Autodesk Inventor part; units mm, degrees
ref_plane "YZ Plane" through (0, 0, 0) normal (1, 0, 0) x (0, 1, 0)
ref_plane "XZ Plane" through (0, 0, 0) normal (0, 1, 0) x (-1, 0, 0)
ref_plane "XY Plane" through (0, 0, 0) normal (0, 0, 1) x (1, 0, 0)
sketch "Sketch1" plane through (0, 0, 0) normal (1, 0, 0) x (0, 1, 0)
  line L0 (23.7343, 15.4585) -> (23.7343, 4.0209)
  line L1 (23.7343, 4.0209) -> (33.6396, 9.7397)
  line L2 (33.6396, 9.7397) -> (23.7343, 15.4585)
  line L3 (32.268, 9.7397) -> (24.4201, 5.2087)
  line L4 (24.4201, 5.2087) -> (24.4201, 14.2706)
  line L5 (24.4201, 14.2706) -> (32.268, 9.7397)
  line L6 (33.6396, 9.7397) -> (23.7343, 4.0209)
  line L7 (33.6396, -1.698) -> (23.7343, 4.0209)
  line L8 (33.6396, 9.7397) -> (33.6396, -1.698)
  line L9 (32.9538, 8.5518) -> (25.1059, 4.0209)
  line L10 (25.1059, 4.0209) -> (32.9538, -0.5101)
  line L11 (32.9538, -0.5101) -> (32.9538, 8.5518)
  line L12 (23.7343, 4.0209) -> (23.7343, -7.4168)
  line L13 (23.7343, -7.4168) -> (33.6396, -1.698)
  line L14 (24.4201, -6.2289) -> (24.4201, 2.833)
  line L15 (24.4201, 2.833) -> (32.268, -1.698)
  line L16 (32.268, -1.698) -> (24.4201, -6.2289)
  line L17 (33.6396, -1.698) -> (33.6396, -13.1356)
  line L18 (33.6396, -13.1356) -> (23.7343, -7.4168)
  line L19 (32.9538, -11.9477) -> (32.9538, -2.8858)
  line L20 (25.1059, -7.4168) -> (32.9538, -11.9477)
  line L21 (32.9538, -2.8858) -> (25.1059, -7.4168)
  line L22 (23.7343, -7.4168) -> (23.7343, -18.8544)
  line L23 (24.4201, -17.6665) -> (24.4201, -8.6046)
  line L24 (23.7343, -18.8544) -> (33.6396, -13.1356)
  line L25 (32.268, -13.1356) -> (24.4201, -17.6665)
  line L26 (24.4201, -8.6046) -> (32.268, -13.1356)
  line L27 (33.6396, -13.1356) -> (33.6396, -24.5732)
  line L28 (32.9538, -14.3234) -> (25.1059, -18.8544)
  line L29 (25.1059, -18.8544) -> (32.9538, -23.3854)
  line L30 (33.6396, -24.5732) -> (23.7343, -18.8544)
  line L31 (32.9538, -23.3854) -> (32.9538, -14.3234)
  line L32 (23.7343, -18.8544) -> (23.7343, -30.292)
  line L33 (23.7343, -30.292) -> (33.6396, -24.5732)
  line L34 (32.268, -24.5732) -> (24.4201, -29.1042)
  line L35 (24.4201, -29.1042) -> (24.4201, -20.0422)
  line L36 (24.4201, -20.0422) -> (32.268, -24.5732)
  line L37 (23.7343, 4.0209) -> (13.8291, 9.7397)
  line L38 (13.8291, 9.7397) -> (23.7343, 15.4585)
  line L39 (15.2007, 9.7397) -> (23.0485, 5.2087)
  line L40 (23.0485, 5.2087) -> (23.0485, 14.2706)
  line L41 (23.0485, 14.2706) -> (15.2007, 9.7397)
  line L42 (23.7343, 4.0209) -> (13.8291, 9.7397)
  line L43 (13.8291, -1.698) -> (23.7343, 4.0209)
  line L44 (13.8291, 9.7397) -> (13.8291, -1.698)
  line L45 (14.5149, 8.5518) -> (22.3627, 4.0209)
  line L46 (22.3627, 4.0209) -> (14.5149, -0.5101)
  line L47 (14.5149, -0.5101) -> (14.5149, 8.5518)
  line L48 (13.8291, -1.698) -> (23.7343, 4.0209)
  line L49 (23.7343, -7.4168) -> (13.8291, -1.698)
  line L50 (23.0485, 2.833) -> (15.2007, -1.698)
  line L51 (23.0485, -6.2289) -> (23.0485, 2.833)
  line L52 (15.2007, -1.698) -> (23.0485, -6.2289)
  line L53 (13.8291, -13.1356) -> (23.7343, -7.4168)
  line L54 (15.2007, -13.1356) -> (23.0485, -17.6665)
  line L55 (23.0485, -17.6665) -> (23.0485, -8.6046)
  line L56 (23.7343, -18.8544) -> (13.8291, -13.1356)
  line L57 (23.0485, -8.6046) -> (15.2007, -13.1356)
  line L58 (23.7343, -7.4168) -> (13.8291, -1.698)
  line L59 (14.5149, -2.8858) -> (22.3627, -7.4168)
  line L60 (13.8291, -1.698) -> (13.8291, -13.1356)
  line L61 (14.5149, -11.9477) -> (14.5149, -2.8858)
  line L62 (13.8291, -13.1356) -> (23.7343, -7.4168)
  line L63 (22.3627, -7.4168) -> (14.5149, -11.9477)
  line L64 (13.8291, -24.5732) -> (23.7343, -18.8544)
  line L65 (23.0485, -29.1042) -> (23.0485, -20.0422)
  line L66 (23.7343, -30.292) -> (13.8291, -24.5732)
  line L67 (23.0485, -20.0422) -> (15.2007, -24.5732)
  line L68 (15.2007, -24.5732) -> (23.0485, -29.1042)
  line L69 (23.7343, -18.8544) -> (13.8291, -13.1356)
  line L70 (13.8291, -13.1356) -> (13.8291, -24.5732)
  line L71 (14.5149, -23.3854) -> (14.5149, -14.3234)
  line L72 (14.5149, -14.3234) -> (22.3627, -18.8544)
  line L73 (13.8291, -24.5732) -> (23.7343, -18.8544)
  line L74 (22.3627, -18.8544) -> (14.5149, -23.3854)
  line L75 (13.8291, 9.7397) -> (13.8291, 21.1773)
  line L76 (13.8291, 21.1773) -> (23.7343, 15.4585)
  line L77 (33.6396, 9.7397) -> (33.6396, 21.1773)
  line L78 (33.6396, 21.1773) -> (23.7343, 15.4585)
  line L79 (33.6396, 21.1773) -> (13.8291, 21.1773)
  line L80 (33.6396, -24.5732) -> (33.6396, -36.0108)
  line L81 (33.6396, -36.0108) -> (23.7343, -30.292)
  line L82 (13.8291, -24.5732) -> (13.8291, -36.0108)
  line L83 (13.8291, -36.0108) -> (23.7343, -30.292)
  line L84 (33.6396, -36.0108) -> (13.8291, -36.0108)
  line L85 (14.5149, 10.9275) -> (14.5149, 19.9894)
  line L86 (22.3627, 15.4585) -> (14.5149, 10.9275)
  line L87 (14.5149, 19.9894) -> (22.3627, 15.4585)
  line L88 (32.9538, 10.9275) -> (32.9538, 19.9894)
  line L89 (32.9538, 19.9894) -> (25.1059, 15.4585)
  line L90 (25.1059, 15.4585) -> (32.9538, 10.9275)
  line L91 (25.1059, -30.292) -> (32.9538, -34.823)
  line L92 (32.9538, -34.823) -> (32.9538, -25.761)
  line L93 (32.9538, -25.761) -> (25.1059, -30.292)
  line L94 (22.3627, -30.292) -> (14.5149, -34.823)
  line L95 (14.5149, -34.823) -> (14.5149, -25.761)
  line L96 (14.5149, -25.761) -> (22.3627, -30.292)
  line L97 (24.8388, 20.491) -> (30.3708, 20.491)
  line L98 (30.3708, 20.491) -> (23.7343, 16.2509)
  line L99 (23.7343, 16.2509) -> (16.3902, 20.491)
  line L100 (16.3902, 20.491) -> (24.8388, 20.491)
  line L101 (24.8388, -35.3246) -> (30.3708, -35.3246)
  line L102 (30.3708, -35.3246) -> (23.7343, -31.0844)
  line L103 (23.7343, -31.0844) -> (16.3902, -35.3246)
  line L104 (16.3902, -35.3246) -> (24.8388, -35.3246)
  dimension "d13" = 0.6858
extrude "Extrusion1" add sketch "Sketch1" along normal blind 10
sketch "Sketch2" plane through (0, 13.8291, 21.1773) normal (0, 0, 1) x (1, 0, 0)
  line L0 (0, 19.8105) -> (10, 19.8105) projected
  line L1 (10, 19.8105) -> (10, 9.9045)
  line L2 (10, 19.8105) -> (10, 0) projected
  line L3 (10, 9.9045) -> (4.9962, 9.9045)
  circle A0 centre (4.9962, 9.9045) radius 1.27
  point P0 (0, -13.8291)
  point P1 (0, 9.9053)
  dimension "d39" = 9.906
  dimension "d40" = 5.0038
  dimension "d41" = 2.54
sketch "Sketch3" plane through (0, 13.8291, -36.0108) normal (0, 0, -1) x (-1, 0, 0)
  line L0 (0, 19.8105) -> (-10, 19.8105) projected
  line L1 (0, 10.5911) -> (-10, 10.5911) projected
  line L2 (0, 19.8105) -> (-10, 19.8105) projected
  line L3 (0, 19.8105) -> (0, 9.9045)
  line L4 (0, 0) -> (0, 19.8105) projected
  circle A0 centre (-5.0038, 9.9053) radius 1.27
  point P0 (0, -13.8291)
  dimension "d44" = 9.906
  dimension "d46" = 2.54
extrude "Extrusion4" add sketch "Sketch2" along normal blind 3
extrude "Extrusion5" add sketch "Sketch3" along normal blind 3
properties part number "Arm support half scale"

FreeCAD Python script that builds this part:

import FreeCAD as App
import Part
import Sketcher

V = App.Vector
Q = App.Units.Quantity

doc = App.newDocument("Part")
body = doc.addObject("PartDesign::Body", "Body")

sketch1 = body.newObject("Sketcher::SketchObject", "Sketch")
sketch1.AttachmentSupport = (doc.getObject("YZ_Plane"), [""])
sketch1.MapMode = "FlatFace"
sketch1.addGeometry([
    Part.LineSegment(V(33.6396, 21.1773, 0), V(13.8291, 21.1773, 0)),
    Part.LineSegment(V(13.8291, 21.1773, 0), V(13.8291, -36.0108, 0)),
    Part.LineSegment(V(13.8291, -36.0108, 0), V(33.6396, -36.0108, 0)),
    Part.LineSegment(V(33.6396, -36.0108, 0), V(33.6396, 21.1773, 0)),
    Part.LineSegment(V(24.4201, 14.2706, 0), V(32.268, 9.7397, 0)),
    Part.LineSegment(V(32.268, 9.7397, 0), V(24.4201, 5.2087, 0)),
    Part.LineSegment(V(24.4201, 5.2087, 0), V(24.4201, 14.2706, 0)),
    Part.LineSegment(V(32.9538, 10.9275, 0), V(25.1059, 15.4585, 0)),
    Part.LineSegment(V(25.1059, 15.4585, 0), V(32.9538, 19.9894, 0)),
    Part.LineSegment(V(32.9538, 19.9894, 0), V(32.9538, 10.9275, 0)),
    Part.LineSegment(V(32.9538, 8.5518, 0), V(32.9538, -0.5101, 0)),
    Part.LineSegment(V(32.9538, -0.5101, 0), V(25.1059, 4.0209, 0)),
    Part.LineSegment(V(25.1059, 4.0209, 0), V(32.9538, 8.5518, 0)),
    Part.LineSegment(V(15.2007, 9.7397, 0), V(23.0485, 14.2706, 0)),
    Part.LineSegment(V(23.0485, 14.2706, 0), V(23.0485, 5.2087, 0)),
    Part.LineSegment(V(23.0485, 5.2087, 0), V(15.2007, 9.7397, 0)),
    Part.LineSegment(V(30.3708, 20.491, 0), V(23.7343, 16.2509, 0)),
    Part.LineSegment(V(23.7343, 16.2509, 0), V(16.3902, 20.491, 0)),
    Part.LineSegment(V(16.3902, 20.491, 0), V(30.3708, 20.491, 0)),
    Part.LineSegment(V(24.4201, -6.2289, 0), V(24.4201, 2.833, 0)),
    Part.LineSegment(V(24.4201, 2.833, 0), V(32.268, -1.698, 0)),
    Part.LineSegment(V(32.268, -1.698, 0), V(24.4201, -6.2289, 0)),
    Part.LineSegment(V(14.5149, 8.5518, 0), V(22.3627, 4.0209, 0)),
    Part.LineSegment(V(22.3627, 4.0209, 0), V(14.5149, -0.5101, 0)),
    Part.LineSegment(V(14.5149, -0.5101, 0), V(14.5149, 8.5518, 0)),
    Part.LineSegment(V(14.5149, 10.9275, 0), V(14.5149, 19.9894, 0)),
    Part.LineSegment(V(14.5149, 19.9894, 0), V(22.3627, 15.4585, 0)),
    Part.LineSegment(V(22.3627, 15.4585, 0), V(14.5149, 10.9275, 0)),
    Part.LineSegment(V(32.9538, -11.9477, 0), V(25.1059, -7.4168, 0)),
    Part.LineSegment(V(25.1059, -7.4168, 0), V(32.9538, -2.8858, 0)),
    Part.LineSegment(V(32.9538, -2.8858, 0), V(32.9538, -11.9477, 0)),
    Part.LineSegment(V(23.0485, 2.833, 0), V(23.0485, -6.2289, 0)),
    Part.LineSegment(V(23.0485, -6.2289, 0), V(15.2007, -1.698, 0)),
    Part.LineSegment(V(15.2007, -1.698, 0), V(23.0485, 2.833, 0)),
    Part.LineSegment(V(24.4201, -17.6665, 0), V(24.4201, -8.6046, 0)),
    Part.LineSegment(V(24.4201, -8.6046, 0), V(32.268, -13.1356, 0)),
    Part.LineSegment(V(32.268, -13.1356, 0), V(24.4201, -17.6665, 0)),
    Part.LineSegment(V(14.5149, -2.8858, 0), V(22.3627, -7.4168, 0)),
    Part.LineSegment(V(22.3627, -7.4168, 0), V(14.5149, -11.9477, 0)),
    Part.LineSegment(V(14.5149, -11.9477, 0), V(14.5149, -2.8858, 0)),
    Part.LineSegment(V(32.9538, -14.3234, 0), V(32.9538, -23.3854, 0)),
    Part.LineSegment(V(32.9538, -23.3854, 0), V(25.1059, -18.8544, 0)),
    Part.LineSegment(V(25.1059, -18.8544, 0), V(32.9538, -14.3234, 0)),
    Part.LineSegment(V(15.2007, -13.1356, 0), V(23.0485, -8.6046, 0)),
    Part.LineSegment(V(23.0485, -8.6046, 0), V(23.0485, -17.6665, 0)),
    Part.LineSegment(V(23.0485, -17.6665, 0), V(15.2007, -13.1356, 0)),
    Part.LineSegment(V(32.268, -24.5732, 0), V(24.4201, -29.1042, 0)),
    Part.LineSegment(V(24.4201, -29.1042, 0), V(24.4201, -20.0422, 0)),
    Part.LineSegment(V(24.4201, -20.0422, 0), V(32.268, -24.5732, 0)),
    Part.LineSegment(V(14.5149, -23.3854, 0), V(14.5149, -14.3234, 0)),
    Part.LineSegment(V(14.5149, -14.3234, 0), V(22.3627, -18.8544, 0)),
    Part.LineSegment(V(22.3627, -18.8544, 0), V(14.5149, -23.3854, 0)),
    Part.LineSegment(V(25.1059, -30.292, 0), V(32.9538, -25.761, 0)),
    Part.LineSegment(V(32.9538, -25.761, 0), V(32.9538, -34.823, 0)),
    Part.LineSegment(V(32.9538, -34.823, 0), V(25.1059, -30.292, 0)),
    Part.LineSegment(V(23.0485, -29.1042, 0), V(15.2007, -24.5732, 0)),
    Part.LineSegment(V(15.2007, -24.5732, 0), V(23.0485, -20.0422, 0)),
    Part.LineSegment(V(23.0485, -20.0422, 0), V(23.0485, -29.1042, 0)),
    Part.LineSegment(V(16.3902, -35.3246, 0), V(23.7343, -31.0844, 0)),
    Part.LineSegment(V(23.7343, -31.0844, 0), V(30.3708, -35.3246, 0)),
    Part.LineSegment(V(30.3708, -35.3246, 0), V(16.3902, -35.3246, 0)),
    Part.LineSegment(V(14.5149, -34.823, 0), V(14.5149, -25.761, 0)),
    Part.LineSegment(V(14.5149, -25.761, 0), V(22.3627, -30.292, 0)),
    Part.LineSegment(V(22.3627, -30.292, 0), V(14.5149, -34.823, 0)),
], False)
sketch1.addConstraint([
    Sketcher.Constraint("Coincident", 0, 2, 1, 1),
    Sketcher.Constraint("Coincident", 1, 2, 2, 1),
    Sketcher.Constraint("Coincident", 2, 2, 3, 1),
    Sketcher.Constraint("Coincident", 3, 2, 0, 1),
    Sketcher.Constraint("Coincident", 4, 2, 5, 1),
    Sketcher.Constraint("Coincident", 5, 2, 6, 1),
    Sketcher.Constraint("Coincident", 6, 2, 4, 1),
    Sketcher.Constraint("Coincident", 7, 2, 8, 1),
    Sketcher.Constraint("Coincident", 8, 2, 9, 1),
    Sketcher.Constraint("Coincident", 9, 2, 7, 1),
    Sketcher.Constraint("Coincident", 10, 2, 11, 1),
    Sketcher.Constraint("Coincident", 11, 2, 12, 1),
    Sketcher.Constraint("Coincident", 12, 2, 10, 1),
    Sketcher.Constraint("Coincident", 13, 2, 14, 1),
    Sketcher.Constraint("Coincident", 14, 2, 15, 1),
    Sketcher.Constraint("Coincident", 15, 2, 13, 1),
    Sketcher.Constraint("Coincident", 16, 2, 17, 1),
    Sketcher.Constraint("Coincident", 17, 2, 18, 1),
    Sketcher.Constraint("Coincident", 18, 2, 16, 1),
    Sketcher.Constraint("Coincident", 19, 2, 20, 1),
    Sketcher.Constraint("Coincident", 20, 2, 21, 1),
    Sketcher.Constraint("Coincident", 21, 2, 19, 1),
    Sketcher.Constraint("Coincident", 22, 2, 23, 1),
    Sketcher.Constraint("Coincident", 23, 2, 24, 1),
    Sketcher.Constraint("Coincident", 24, 2, 22, 1),
    Sketcher.Constraint("Coincident", 25, 2, 26, 1),
    Sketcher.Constraint("Coincident", 26, 2, 27, 1),
    Sketcher.Constraint("Coincident", 27, 2, 25, 1),
    Sketcher.Constraint("Coincident", 28, 2, 29, 1),
    Sketcher.Constraint("Coincident", 29, 2, 30, 1),
    Sketcher.Constraint("Coincident", 30, 2, 28, 1),
    Sketcher.Constraint("Coincident", 31, 2, 32, 1),
    Sketcher.Constraint("Coincident", 32, 2, 33, 1),
    Sketcher.Constraint("Coincident", 33, 2, 31, 1),
    Sketcher.Constraint("Coincident", 34, 2, 35, 1),
    Sketcher.Constraint("Coincident", 35, 2, 36, 1),
    Sketcher.Constraint("Coincident", 36, 2, 34, 1),
    Sketcher.Constraint("Coincident", 37, 2, 38, 1),
    Sketcher.Constraint("Coincident", 38, 2, 39, 1),
    Sketcher.Constraint("Coincident", 39, 2, 37, 1),
    Sketcher.Constraint("Coincident", 40, 2, 41, 1),
    Sketcher.Constraint("Coincident", 41, 2, 42, 1),
    Sketcher.Constraint("Coincident", 42, 2, 40, 1),
    Sketcher.Constraint("Coincident", 43, 2, 44, 1),
    Sketcher.Constraint("Coincident", 44, 2, 45, 1),
    Sketcher.Constraint("Coincident", 45, 2, 43, 1),
    Sketcher.Constraint("Coincident", 46, 2, 47, 1),
    Sketcher.Constraint("Coincident", 47, 2, 48, 1),
    Sketcher.Constraint("Coincident", 48, 2, 46, 1),
    Sketcher.Constraint("Coincident", 49, 2, 50, 1),
    Sketcher.Constraint("Coincident", 50, 2, 51, 1),
    Sketcher.Constraint("Coincident", 51, 2, 49, 1),
    Sketcher.Constraint("Coincident", 52, 2, 53, 1),
    Sketcher.Constraint("Coincident", 53, 2, 54, 1),
    Sketcher.Constraint("Coincident", 54, 2, 52, 1),
    Sketcher.Constraint("Coincident", 55, 2, 56, 1),
    Sketcher.Constraint("Coincident", 56, 2, 57, 1),
    Sketcher.Constraint("Coincident", 57, 2, 55, 1),
    Sketcher.Constraint("Coincident", 58, 2, 59, 1),
    Sketcher.Constraint("Coincident", 59, 2, 60, 1),
    Sketcher.Constraint("Coincident", 60, 2, 58, 1),
    Sketcher.Constraint("Coincident", 61, 2, 62, 1),
    Sketcher.Constraint("Coincident", 62, 2, 63, 1),
    Sketcher.Constraint("Coincident", 63, 2, 61, 1),
    Sketcher.Constraint("Horizontal", 0),
    Sketcher.Constraint("Vertical", 1),
    Sketcher.Constraint("Horizontal", 2),
    Sketcher.Constraint("Vertical", 3),
    Sketcher.Constraint("Vertical", 6),
    Sketcher.Constraint("Vertical", 9),
    Sketcher.Constraint("Vertical", 10),
    Sketcher.Constraint("Vertical", 14),
    Sketcher.Constraint("Horizontal", 18),
    Sketcher.Constraint("Vertical", 19),
    Sketcher.Constraint("Vertical", 24),
    Sketcher.Constraint("Vertical", 25),
    Sketcher.Constraint("Vertical", 30),
    Sketcher.Constraint("Vertical", 31),
    Sketcher.Constraint("Vertical", 34),
    Sketcher.Constraint("Vertical", 39),
    Sketcher.Constraint("Vertical", 40),
    Sketcher.Constraint("Vertical", 44),
    Sketcher.Constraint("Vertical", 47),
    Sketcher.Constraint("Vertical", 49),
    Sketcher.Constraint("Vertical", 53),
    Sketcher.Constraint("Vertical", 57),
    Sketcher.Constraint("Horizontal", 60),
    Sketcher.Constraint("Vertical", 61),
    Sketcher.Constraint("Parallel", 4, 7),
    Sketcher.Constraint("Parallel", 5, 8),
    Sketcher.Constraint("Parallel", 7, 11),
    Sketcher.Constraint("Parallel", 8, 12),
    Sketcher.Constraint("Parallel", 12, 13),
    Sketcher.Constraint("Parallel", 11, 15),
    Sketcher.Constraint("Parallel", 15, 17),
    Sketcher.Constraint("Parallel", 17, 20),
    Sketcher.Constraint("Parallel", 13, 21),
    Sketcher.Constraint("Parallel", 20, 22),
    Sketcher.Constraint("Parallel", 21, 23),
    Sketcher.Constraint("Parallel", 22, 26),
    Sketcher.Constraint("Parallel", 23, 27),
    Sketcher.Constraint("Parallel", 26, 28),
    Sketcher.Constraint("Parallel", 27, 29),
    Sketcher.Constraint("Parallel", 28, 32),
    Sketcher.Constraint("Parallel", 29, 33),
    Sketcher.Constraint("Parallel", 32, 35),
    Sketcher.Constraint("Parallel", 33, 36),
    Sketcher.Constraint("Parallel", 35, 37),
    Sketcher.Constraint("Parallel", 36, 38),
    Sketcher.Constraint("Parallel", 37, 41),
    Sketcher.Constraint("Parallel", 38, 42),
    Sketcher.Constraint("Parallel", 42, 43),
    Sketcher.Constraint("Parallel", 41, 45),
    Sketcher.Constraint("Parallel", 43, 46),
    Sketcher.Constraint("Parallel", 45, 48),
    Sketcher.Constraint("Parallel", 48, 50),
    Sketcher.Constraint("Parallel", 46, 51),
    Sketcher.Constraint("Parallel", 51, 52),
    Sketcher.Constraint("Parallel", 50, 54),
    Sketcher.Constraint("Parallel", 54, 55),
    Sketcher.Constraint("Parallel", 52, 56),
    Sketcher.Constraint("Parallel", 56, 58),
    Sketcher.Constraint("Parallel", 55, 62),
    Sketcher.Constraint("Parallel", 58, 63),
    Sketcher.Constraint("Horizontal", 6, 2, 13, 2),
    Sketcher.Constraint("Horizontal", 5, 2, 14, 2),
    Sketcher.Constraint("Horizontal", 4, 2, 15, 2),
    Sketcher.Constraint("Horizontal", 11, 2, 22, 2),
    Sketcher.Constraint("Horizontal", 10, 2, 23, 2),
    Sketcher.Constraint("Horizontal", 8, 2, 25, 2),
    Sketcher.Constraint("Horizontal", 7, 2, 26, 2),
    Sketcher.Constraint("Horizontal", 21, 2, 31, 2),
    Sketcher.Constraint("Horizontal", 20, 2, 32, 2),
    Sketcher.Constraint("Horizontal", 28, 2, 37, 2),
    Sketcher.Constraint("Horizontal", 30, 2, 38, 2),
    Sketcher.Constraint("Horizontal", 34, 2, 43, 2),
    Sketcher.Constraint("Horizontal", 36, 2, 44, 2),
    Sketcher.Constraint("Horizontal", 42, 2, 49, 2),
    Sketcher.Constraint("Horizontal", 41, 2, 50, 2),
    Sketcher.Constraint("Horizontal", 48, 2, 55, 2),
    Sketcher.Constraint("Horizontal", 47, 2, 56, 2),
    Sketcher.Constraint("Horizontal", 52, 2, 61, 2),
    Sketcher.Constraint("Horizontal", 54, 2, 62, 2),
    Sketcher.Constraint("Vertical", 9, 2, 10, 2),
    Sketcher.Constraint("Vertical", 7, 2, 11, 2),
    Sketcher.Constraint("Vertical", 6, 2, 19, 2),
    Sketcher.Constraint("Vertical", 4, 2, 20, 2),
    Sketcher.Constraint("Vertical", 24, 2, 25, 2),
    Sketcher.Constraint("Vertical", 11, 2, 28, 2),
    Sketcher.Constraint("Vertical", 12, 2, 29, 2),
    Sketcher.Constraint("Vertical", 14, 2, 31, 2),
    Sketcher.Constraint("Vertical", 21, 2, 34, 2),
    Sketcher.Constraint("Vertical", 20, 2, 35, 2),
    Sketcher.Constraint("Vertical", 26, 2, 37, 2),
    Sketcher.Constraint("Vertical", 30, 2, 40, 2),
    Sketcher.Constraint("Vertical", 28, 2, 41, 2),
    Sketcher.Constraint("Vertical", 33, 2, 43, 2),
    Sketcher.Constraint("Vertical", 36, 2, 46, 2),
    Sketcher.Constraint("Vertical", 35, 2, 48, 2),
    Sketcher.Constraint("Vertical", 39, 2, 49, 2),
    Sketcher.Constraint("Vertical", 42, 2, 52, 2),
    Sketcher.Constraint("Vertical", 41, 2, 54, 2),
    Sketcher.Constraint("Vertical", 45, 2, 55, 2),
    Sketcher.Constraint("Vertical", 16, 2, 58, 2),
    Sketcher.Constraint("Vertical", 18, 2, 59, 2),
    Sketcher.Constraint("Vertical", 17, 2, 60, 2),
    Sketcher.Constraint("Vertical", 51, 2, 61, 2),
    Sketcher.Constraint("Equal", 6, 9),
    Sketcher.Constraint("Angle", 4, Q("-29.9995 deg")),
    Sketcher.Constraint("DistanceY", 1, 2, 1, 1, Q("2.2515 in")),
    Sketcher.Constraint("DistanceY", 28, 2, -1, 1, Q("0.292 in")),
    Sketcher.Constraint("DistanceX", 0, 2, 0, 1, Q("19.8105 mm")),
    Sketcher.Constraint("DistanceX", 18, 1, 18, 2, Q("13.9806 mm")),
    Sketcher.Constraint("DistanceY", 6, 1, 6, 2, Q("9.062 mm")),
    Sketcher.Constraint("DistanceX", -1, 1, 2, 2, Q("1.3244 in")),
    Sketcher.Constraint("DistanceX", -1, 1, 4, 2, Q("1.2704 in")),
    Sketcher.Constraint("DistanceY", -1, 1, 7, 2, Q("0.6086 in")),
    Sketcher.Constraint("DistanceX", -1, 1, 8, 2, Q("1.2974 in")),
    Sketcher.Constraint("DistanceY", -1, 1, 11, 2, Q("0.1583 in")),
    Sketcher.Constraint("DistanceY", -1, 1, 16, 2, Q("0.6398 in")),
    Sketcher.Constraint("DistanceX", -1, 1, 18, 2, Q("1.1957 in")),
    Sketcher.Constraint("DistanceY", 41, 2, -1, 1, Q("0.7423 in")),
    Sketcher.Constraint("DistanceY", 54, 2, -1, 1, Q("1.1926 in")),
    Sketcher.Constraint("DistanceY", 58, 2, -1, 1, Q("1.2238 in")),
    Sketcher.Constraint("Distance", 16, Q("7.8754 mm")),
    Sketcher.Constraint("DistanceY", -1, 1, 0, 2, Q("21.1773 mm")),
    Sketcher.Constraint("DistanceY", -1, 1, 4, 2, Q("9.7397 mm")),
    Sketcher.Constraint("DistanceX", -1, 1, 13, 2, Q("23.0485 mm")),
    Sketcher.Constraint("DistanceY", -1, 1, 19, 2, Q("2.833 mm")),
    Sketcher.Constraint("DistanceX", -1, 1, 22, 2, Q("22.3627 mm")),
    Sketcher.Constraint("DistanceY", 34, 2, -1, 1, Q("8.6046 mm")),
    Sketcher.Constraint("DistanceY", 46, 2, -1, 1, Q("29.1042 mm")),
])
pad1 = body.newObject("PartDesign::Pad", "Pad")
pad1.Profile = sketch1
pad1.Length = Q("0.3937008 in")

sketch2 = body.newObject("Sketcher::SketchObject", "Sketch001")
sketch2.AttachmentSupport = (doc.getObject("XY_Plane"), [""])
sketch2.MapMode = "FlatFace"
sketch2.AttachmentOffset = App.Placement(V(0, 0, 21.1773), App.Rotation())
sketch2.addGeometry(Part.Circle(V(4.9962, 23.7336, 0), V(0, 0, 1), 1.27), False)
sketch2.addConstraint([
    Sketcher.Constraint("Diameter", 0, Q("0.1 in")),
    Sketcher.Constraint("DistanceX", -1, 1, 0, 3, Q("0.1967 in")),
    Sketcher.Constraint("DistanceY", -1, 1, 0, 3, Q("0.9344 in")),
])
pad2 = body.newObject("PartDesign::Pad", "Pad001")
pad2.Profile = sketch2
pad2.Length = Q("0.1181102 in")

sketch3 = body.newObject("Sketcher::SketchObject", "Sketch002")
sketch3.AttachmentSupport = (doc.getObject("XY_Plane"), [""])
sketch3.MapMode = "FlatFace"
sketch3.AttachmentOffset = App.Placement(V(0, 0, -36.0108), App.Rotation())
sketch3.addGeometry(Part.Circle(V(5.0038, 23.7344, 0), V(0, 0, 1), 1.27), False)
sketch3.addConstraint([
    Sketcher.Constraint("Diameter", 0, Q("0.1 in")),
    Sketcher.Constraint("DistanceX", -1, 1, 0, 3, Q("0.197 in")),
    Sketcher.Constraint("DistanceY", -1, 1, 0, 3, Q("23.7344 mm")),
])
pad3 = body.newObject("PartDesign::Pad", "Pad002")
pad3.Profile = sketch3
pad3.Length = Q("0.1181102 in")
pad3.Reversed = True

doc.recompute()
